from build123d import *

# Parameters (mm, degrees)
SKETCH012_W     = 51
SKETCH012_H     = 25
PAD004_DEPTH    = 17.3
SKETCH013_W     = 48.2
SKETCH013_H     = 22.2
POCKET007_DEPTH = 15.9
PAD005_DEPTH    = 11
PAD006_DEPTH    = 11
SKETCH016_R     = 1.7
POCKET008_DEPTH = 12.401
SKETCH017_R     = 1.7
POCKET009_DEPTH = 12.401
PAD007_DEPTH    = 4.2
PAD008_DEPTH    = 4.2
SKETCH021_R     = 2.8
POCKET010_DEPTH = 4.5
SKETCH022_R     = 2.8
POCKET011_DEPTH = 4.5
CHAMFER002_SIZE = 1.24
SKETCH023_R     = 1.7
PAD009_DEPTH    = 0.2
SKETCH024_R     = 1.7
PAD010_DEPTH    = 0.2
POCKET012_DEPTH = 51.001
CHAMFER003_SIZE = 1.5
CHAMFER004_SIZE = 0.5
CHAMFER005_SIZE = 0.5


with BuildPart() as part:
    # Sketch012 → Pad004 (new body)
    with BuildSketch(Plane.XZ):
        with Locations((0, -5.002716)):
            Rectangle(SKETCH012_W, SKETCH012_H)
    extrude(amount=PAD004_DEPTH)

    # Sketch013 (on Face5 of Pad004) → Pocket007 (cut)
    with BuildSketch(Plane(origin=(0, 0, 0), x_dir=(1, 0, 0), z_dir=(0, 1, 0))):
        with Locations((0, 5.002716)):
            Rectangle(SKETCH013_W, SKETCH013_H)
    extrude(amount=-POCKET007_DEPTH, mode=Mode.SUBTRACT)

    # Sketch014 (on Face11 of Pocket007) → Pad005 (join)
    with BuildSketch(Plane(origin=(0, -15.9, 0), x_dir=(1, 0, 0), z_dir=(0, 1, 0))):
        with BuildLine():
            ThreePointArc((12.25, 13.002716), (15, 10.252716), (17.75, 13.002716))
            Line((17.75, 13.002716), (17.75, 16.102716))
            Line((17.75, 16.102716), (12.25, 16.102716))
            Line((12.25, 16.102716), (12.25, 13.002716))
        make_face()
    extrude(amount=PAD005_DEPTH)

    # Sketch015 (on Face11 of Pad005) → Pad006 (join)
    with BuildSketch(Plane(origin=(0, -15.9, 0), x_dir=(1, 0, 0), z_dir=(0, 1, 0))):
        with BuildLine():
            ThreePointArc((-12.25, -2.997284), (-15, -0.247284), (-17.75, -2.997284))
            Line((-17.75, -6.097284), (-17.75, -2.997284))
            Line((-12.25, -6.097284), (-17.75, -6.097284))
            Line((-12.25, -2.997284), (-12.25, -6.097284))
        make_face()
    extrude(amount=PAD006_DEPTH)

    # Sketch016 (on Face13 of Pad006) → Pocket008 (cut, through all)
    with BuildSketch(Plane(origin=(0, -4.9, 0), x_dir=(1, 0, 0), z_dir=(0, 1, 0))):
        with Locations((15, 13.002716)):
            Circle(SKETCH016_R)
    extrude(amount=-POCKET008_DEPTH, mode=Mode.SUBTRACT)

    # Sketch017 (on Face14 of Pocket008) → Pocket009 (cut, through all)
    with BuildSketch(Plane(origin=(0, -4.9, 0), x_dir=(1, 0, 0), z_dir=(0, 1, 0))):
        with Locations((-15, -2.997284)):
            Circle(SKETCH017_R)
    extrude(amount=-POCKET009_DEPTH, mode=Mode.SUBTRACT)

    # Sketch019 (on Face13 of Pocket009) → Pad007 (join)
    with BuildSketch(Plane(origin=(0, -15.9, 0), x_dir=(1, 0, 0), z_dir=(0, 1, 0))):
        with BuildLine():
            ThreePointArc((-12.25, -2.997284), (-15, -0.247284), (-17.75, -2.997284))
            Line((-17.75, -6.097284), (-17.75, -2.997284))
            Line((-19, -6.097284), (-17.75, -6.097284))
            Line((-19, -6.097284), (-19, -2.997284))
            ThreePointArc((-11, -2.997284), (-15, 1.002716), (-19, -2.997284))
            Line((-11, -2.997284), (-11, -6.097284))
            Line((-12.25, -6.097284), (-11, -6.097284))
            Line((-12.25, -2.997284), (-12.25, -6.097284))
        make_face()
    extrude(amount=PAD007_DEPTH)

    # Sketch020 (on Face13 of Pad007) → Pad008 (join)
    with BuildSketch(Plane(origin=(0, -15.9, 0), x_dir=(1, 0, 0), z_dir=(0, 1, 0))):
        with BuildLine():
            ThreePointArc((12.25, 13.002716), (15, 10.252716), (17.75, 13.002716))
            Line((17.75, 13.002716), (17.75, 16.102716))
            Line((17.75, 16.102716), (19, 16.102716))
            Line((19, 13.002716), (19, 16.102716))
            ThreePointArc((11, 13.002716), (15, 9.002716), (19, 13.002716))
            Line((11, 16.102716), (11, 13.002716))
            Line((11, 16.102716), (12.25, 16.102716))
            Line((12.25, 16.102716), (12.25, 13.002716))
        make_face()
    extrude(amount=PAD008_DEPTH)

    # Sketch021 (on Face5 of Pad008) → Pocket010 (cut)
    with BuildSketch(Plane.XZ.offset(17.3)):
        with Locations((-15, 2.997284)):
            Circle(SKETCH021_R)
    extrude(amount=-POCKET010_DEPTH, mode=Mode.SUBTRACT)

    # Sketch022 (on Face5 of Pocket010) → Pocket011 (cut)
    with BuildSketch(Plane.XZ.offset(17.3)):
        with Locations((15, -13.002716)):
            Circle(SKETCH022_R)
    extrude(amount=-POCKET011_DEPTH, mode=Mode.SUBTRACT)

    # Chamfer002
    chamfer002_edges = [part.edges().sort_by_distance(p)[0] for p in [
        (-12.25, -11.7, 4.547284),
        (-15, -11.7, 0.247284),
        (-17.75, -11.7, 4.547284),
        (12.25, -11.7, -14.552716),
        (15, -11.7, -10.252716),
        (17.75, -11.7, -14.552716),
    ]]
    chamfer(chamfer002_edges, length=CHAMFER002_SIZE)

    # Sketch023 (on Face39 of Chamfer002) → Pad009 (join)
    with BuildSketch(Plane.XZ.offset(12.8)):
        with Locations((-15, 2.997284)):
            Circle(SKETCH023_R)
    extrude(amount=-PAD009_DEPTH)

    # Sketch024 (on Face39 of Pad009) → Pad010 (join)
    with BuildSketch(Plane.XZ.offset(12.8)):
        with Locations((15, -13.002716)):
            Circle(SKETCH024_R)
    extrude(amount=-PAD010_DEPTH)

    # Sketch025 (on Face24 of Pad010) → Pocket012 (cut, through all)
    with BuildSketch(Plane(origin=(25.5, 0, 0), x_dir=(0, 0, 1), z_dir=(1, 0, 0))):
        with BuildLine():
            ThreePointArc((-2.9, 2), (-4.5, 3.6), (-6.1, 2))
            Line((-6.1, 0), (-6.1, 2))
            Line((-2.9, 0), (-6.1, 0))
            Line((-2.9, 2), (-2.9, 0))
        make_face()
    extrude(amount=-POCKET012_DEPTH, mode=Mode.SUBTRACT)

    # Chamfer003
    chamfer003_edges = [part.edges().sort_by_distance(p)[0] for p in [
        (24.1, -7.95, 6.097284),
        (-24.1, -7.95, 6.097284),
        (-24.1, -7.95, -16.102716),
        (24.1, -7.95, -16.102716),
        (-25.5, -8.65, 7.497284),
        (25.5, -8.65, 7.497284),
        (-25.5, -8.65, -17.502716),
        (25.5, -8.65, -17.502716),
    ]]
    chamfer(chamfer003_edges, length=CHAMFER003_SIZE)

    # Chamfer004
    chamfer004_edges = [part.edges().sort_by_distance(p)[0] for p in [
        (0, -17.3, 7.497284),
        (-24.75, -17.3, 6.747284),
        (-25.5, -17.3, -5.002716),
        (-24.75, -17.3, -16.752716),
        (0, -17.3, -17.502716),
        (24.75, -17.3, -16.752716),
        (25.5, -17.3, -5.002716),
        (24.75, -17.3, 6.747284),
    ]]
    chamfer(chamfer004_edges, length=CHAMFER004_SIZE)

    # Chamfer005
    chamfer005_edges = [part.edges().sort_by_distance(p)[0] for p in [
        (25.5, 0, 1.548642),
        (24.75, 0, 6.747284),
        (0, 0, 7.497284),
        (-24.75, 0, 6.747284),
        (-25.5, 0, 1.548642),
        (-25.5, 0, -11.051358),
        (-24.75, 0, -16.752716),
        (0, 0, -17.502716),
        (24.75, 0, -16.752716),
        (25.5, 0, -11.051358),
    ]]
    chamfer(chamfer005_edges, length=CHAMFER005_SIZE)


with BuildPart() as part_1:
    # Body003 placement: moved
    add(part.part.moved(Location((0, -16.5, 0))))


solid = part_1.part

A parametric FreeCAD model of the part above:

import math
import FreeCAD as App
import Part
import Sketcher
from FreeCAD import Vector
Q = App.Units.Quantity


def edges_at(feature, points):
    """Names of the edges that pass closest to the given points."""
    edges = feature.Shape.Edges
    near = lambda p: min(range(len(edges)), key=lambda i: edges[i].distToShape(Part.Vertex(*p))[0])
    return sorted({f"Edge{near(p) + 1}" for p in points})


def add_polygon(sketch, points):
    """Adds a closed chain of lines whose ends are joined by coincident constraints."""
    first, n = sketch.GeometryCount, len(points)
    for a, b in zip(points, points[1:] + points[:1]):
        sketch.addGeometry(Part.LineSegment(App.Vector(*a, 0), App.Vector(*b, 0)), False)
    for i in range(n):
        sketch.addConstraint(Sketcher.Constraint("Coincident", first + i, 2, first + (i + 1) % n, 1))

doc = App.newDocument("Part")
body = doc.addObject("PartDesign::Body", "Body")

# Sketch on XZ plane
sketch1 = body.newObject("Sketcher::SketchObject", "Sketch")
sketch1.AttachmentSupport = (doc.getObject("XZ_Plane"), [""])
sketch1.MapMode = "FlatFace"
add_polygon(sketch1, [(-25.5, 7.497284), (-25.5, -17.502716), (25.5, -17.502716), (25.5, 7.497284)])  # lines 0-3
sketch1.addConstraint([
    Sketcher.Constraint("Vertical", 0),
    Sketcher.Constraint("Horizontal", 1),
    Sketcher.Constraint("Vertical", 2),
    Sketcher.Constraint("Horizontal", 3),
    Sketcher.Constraint("DistanceX", 1, 1, 1, 2, Q("51 mm")),
    Sketcher.Constraint("DistanceY", 0, 2, 0, 1, Q("25 mm")),
    Sketcher.Constraint("DistanceX", 0, 2, -1, 1, Q("25.5 mm")),
    Sketcher.Constraint("DistanceY", 0, 2, -1, 1, Q("17.502716 mm")),
])
pad1 = body.newObject("PartDesign::Pad", "Pad")
pad1.Profile = sketch1
pad1.Length = 17.3

# Sketch on XZ plane
sketch2 = body.newObject("Sketcher::SketchObject", "Sketch001")
sketch2.AttachmentSupport = (doc.getObject("XZ_Plane"), [""])
sketch2.MapMode = "FlatFace"
add_polygon(sketch2, [(-24.1, -16.102716), (-24.1, 6.097284), (24.1, 6.097284), (24.1, -16.102716)])  # lines 0-3
sketch2.addConstraint([
    Sketcher.Constraint("Vertical", 0),
    Sketcher.Constraint("Horizontal", 1),
    Sketcher.Constraint("Vertical", 2),
    Sketcher.Constraint("Horizontal", 3),
    Sketcher.Constraint("DistanceX", 1, 1, 1, 2, Q("48.2 mm")),
    Sketcher.Constraint("DistanceY", 0, 1, 0, 2, Q("22.2 mm")),
    Sketcher.Constraint("DistanceX", 0, 2, -1, 1, Q("24.1 mm")),
    Sketcher.Constraint("DistanceY", -1, 1, 0, 2, Q("6.097284 mm")),
])
pocket1 = body.newObject("PartDesign::Pocket", "Pocket")
pocket1.Profile = sketch2
pocket1.Length = 15.9
pocket1.Reversed = True

# Sketch on XZ plane
sketch3 = body.newObject("Sketcher::SketchObject", "Sketch002")
sketch3.AttachmentSupport = (doc.getObject("XZ_Plane"), [""])
sketch3.MapMode = "FlatFace"
sketch3.AttachmentOffset = App.Placement(Vector(0, 0, 15.9), App.Rotation())
sketch3.addGeometry([
    Part.ArcOfCircle(Part.Circle(Vector(15, -13.002716, 0), Vector(0, 0, 1), 2.75), math.radians(0), math.radians(180)),
    Part.LineSegment(Vector(17.75, -13.002716, 0), Vector(17.75, -16.102716, 0)),
    Part.LineSegment(Vector(17.75, -16.102716, 0), Vector(12.25, -16.102716, 0)),
    Part.LineSegment(Vector(12.25, -16.102716, 0), Vector(12.25, -13.002716, 0)),
], False)
sketch3.addConstraint([
    Sketcher.Constraint("Tangent", 0, 1, 1, 1),
    Sketcher.Constraint("Coincident", 1, 2, 2, 1),
    Sketcher.Constraint("Coincident", 2, 2, 3, 1),
    Sketcher.Constraint("Tangent", 3, 2, 0, 2),
    Sketcher.Constraint("Vertical", 1),
    Sketcher.Constraint("Horizontal", 2),
    Sketcher.Constraint("Vertical", 3),
    Sketcher.Constraint("Radius", 0, Q("2.75 mm")),
    Sketcher.Constraint("DistanceY", 1, 2, 1, 1, Q("3.1 mm")),
    Sketcher.Constraint("DistanceX", -1, 1, 0, 3, Q("15 mm")),
    Sketcher.Constraint("DistanceY", 0, 3, -1, 1, Q("13.002716 mm")),
])
pad2 = body.newObject("PartDesign::Pad", "Pad001")
pad2.Profile = sketch3
pad2.Length = 11
pad2.Reversed = True

# Sketch on XZ plane
sketch4 = body.newObject("Sketcher::SketchObject", "Sketch003")
sketch4.AttachmentSupport = (doc.getObject("XZ_Plane"), [""])
sketch4.MapMode = "FlatFace"
sketch4.AttachmentOffset = App.Placement(Vector(0, 0, 15.9), App.Rotation())
sketch4.addGeometry([
    Part.ArcOfCircle(Part.Circle(Vector(-15, 2.997284, 0), Vector(0, 0, 1), 2.75), math.radians(180), math.radians(360)),
    Part.LineSegment(Vector(-17.75, 2.997284, 0), Vector(-17.75, 6.097284, 0)),
    Part.LineSegment(Vector(-17.75, 6.097284, 0), Vector(-12.25, 6.097284, 0)),
    Part.LineSegment(Vector(-12.25, 6.097284, 0), Vector(-12.25, 2.997284, 0)),
], False)
sketch4.addConstraint([
    Sketcher.Constraint("Tangent", 0, 1, 1, 1),
    Sketcher.Constraint("Coincident", 1, 2, 2, 1),
    Sketcher.Constraint("Coincident", 2, 2, 3, 1),
    Sketcher.Constraint("Tangent", 3, 2, 0, 2),
    Sketcher.Constraint("Vertical", 1),
    Sketcher.Constraint("Horizontal", 2),
    Sketcher.Constraint("Vertical", 3),
    Sketcher.Constraint("Radius", 0, Q("2.75 mm")),
    Sketcher.Constraint("DistanceY", 1, 1, 1, 2, Q("3.1 mm")),
    Sketcher.Constraint("DistanceX", 0, 3, -1, 1, Q("15 mm")),
    Sketcher.Constraint("DistanceY", -1, 1, 0, 3, Q("2.997284 mm")),
])
pad3 = body.newObject("PartDesign::Pad", "Pad002")
pad3.Profile = sketch4
pad3.Length = 11
pad3.Reversed = True

# Sketch on XZ plane
sketch5 = body.newObject("Sketcher::SketchObject", "Sketch004")
sketch5.AttachmentSupport = (doc.getObject("XZ_Plane"), [""])
sketch5.MapMode = "FlatFace"
sketch5.AttachmentOffset = App.Placement(Vector(0, 0, 4.9), App.Rotation())
sketch5.addGeometry(Part.Circle(Vector(15, -13.002716, 0), Vector(0, 0, 1), 1.7), False)
sketch5.addConstraint([
    Sketcher.Constraint("Diameter", 0, Q("3.4 mm")),
    Sketcher.Constraint("DistanceX", -1, 1, 0, 3, Q("15 mm")),
    Sketcher.Constraint("DistanceY", 0, 3, -1, 1, Q("13.002716 mm")),
])
pocket2 = body.newObject("PartDesign::Pocket", "Pocket001")
pocket2.Profile = sketch5
pocket2.Type = "ThroughAll"
pocket2.Reversed = True

# Sketch on XZ plane
sketch6 = body.newObject("Sketcher::SketchObject", "Sketch005")
sketch6.AttachmentSupport = (doc.getObject("XZ_Plane"), [""])
sketch6.MapMode = "FlatFace"
sketch6.AttachmentOffset = App.Placement(Vector(0, 0, 4.9), App.Rotation())
sketch6.addGeometry(Part.Circle(Vector(-15, 2.997284, 0), Vector(0, 0, 1), 1.7), False)
sketch6.addConstraint([
    Sketcher.Constraint("Diameter", 0, Q("3.4 mm")),
    Sketcher.Constraint("DistanceX", 0, 3, -1, 1, Q("15 mm")),
    Sketcher.Constraint("DistanceY", -1, 1, 0, 3, Q("2.997284 mm")),
])
pocket3 = body.newObject("PartDesign::Pocket", "Pocket002")
pocket3.Profile = sketch6
pocket3.Type = "ThroughAll"
pocket3.Reversed = True

# Sketch on XZ plane
sketch7 = body.newObject("Sketcher::SketchObject", "Sketch006")
sketch7.AttachmentSupport = (doc.getObject("XZ_Plane"), [""])
sketch7.MapMode = "FlatFace"
sketch7.AttachmentOffset = App.Placement(Vector(0, 0, 15.9), App.Rotation())
sketch7.addGeometry([
    Part.ArcOfCircle(Part.Circle(Vector(-15, 2.997284, 0), Vector(0, 0, 1), 2.75), math.radians(180), math.radians(360)),  # 0
    Part.LineSegment(Vector(-12.25, 2.997284, 0), Vector(-12.25, 6.097284, 0)),  # 1
    Part.LineSegment(Vector(-12.25, 6.097284, 0), Vector(-11, 6.097284, 0)),  # 2
    Part.LineSegment(Vector(-11, 6.097284, 0), Vector(-11, 2.997284, 0)),  # 3
    Part.ArcOfCircle(Part.Circle(Vector(-15, 2.997284, 0), Vector(0, 0, 1), 4), math.radians(180), math.radians(360)),  # 4
    Part.LineSegment(Vector(-19, 2.997284, 0), Vector(-19, 6.097284, 0)),  # 5
    Part.LineSegment(Vector(-19, 6.097284, 0), Vector(-17.75, 6.097284, 0)),  # 6
    Part.LineSegment(Vector(-17.75, 6.097284, 0), Vector(-17.75, 2.997284, 0)),  # 7
], False)
sketch7.addConstraint([
    Sketcher.Constraint("Tangent", 0, 2, 1, 1),
    Sketcher.Constraint("Coincident", 1, 2, 2, 1),
    Sketcher.Constraint("Coincident", 2, 2, 3, 1),
    Sketcher.Constraint("Tangent", 3, 2, 4, 2),
    Sketcher.Constraint("Tangent", 4, 1, 5, 1),
    Sketcher.Constraint("Coincident", 5, 2, 6, 1),
    Sketcher.Constraint("Coincident", 6, 2, 7, 1),
    Sketcher.Constraint("Tangent", 7, 2, 0, 1),
    Sketcher.Constraint("Vertical", 1),
    Sketcher.Constraint("Horizontal", 2),
    Sketcher.Constraint("Vertical", 3),
    Sketcher.Constraint("Vertical", 5),
    Sketcher.Constraint("Horizontal", 6),
    Sketcher.Constraint("Vertical", 7),
    Sketcher.Constraint("Coincident", 4, 3, 0, 3),
    Sketcher.Constraint("Horizontal", 2, 2, 5, 2),
    Sketcher.Constraint("Radius", 4, Q("4 mm")),
    Sketcher.Constraint("Radius", 0, Q("2.75 mm")),
    Sketcher.Constraint("DistanceY", 1, 1, 1, 2, Q("3.1 mm")),
    Sketcher.Constraint("DistanceX", 0, 3, -1, 1, Q("15 mm")),
    Sketcher.Constraint("DistanceY", -1, 1, 0, 3, Q("2.997284 mm")),
])
pad4 = body.newObject("PartDesign::Pad", "Pad003")
pad4.Profile = sketch7
pad4.Length = 4.2
pad4.Reversed = True

# Sketch on XZ plane
sketch8 = body.newObject("Sketcher::SketchObject", "Sketch007")
sketch8.AttachmentSupport = (doc.getObject("XZ_Plane"), [""])
sketch8.MapMode = "FlatFace"
sketch8.AttachmentOffset = App.Placement(Vector(0, 0, 15.9), App.Rotation())
sketch8.addGeometry([
    Part.ArcOfCircle(Part.Circle(Vector(15, -13.002716, 0), Vector(0, 0, 1), 2.75), math.radians(0), math.radians(180)),  # 0
    Part.LineSegment(Vector(12.25, -13.002716, 0), Vector(12.25, -16.102716, 0)),  # 1
    Part.LineSegment(Vector(12.25, -16.102716, 0), Vector(11, -16.102716, 0)),  # 2
    Part.LineSegment(Vector(11, -16.102716, 0), Vector(11, -13.002716, 0)),  # 3
    Part.ArcOfCircle(Part.Circle(Vector(15, -13.002716, 0), Vector(0, 0, 1), 4), math.radians(0), math.radians(180)),  # 4
    Part.LineSegment(Vector(19, -13.002716, 0), Vector(19, -16.102716, 0)),  # 5
    Part.LineSegment(Vector(19, -16.102716, 0), Vector(17.75, -16.102716, 0)),  # 6
    Part.LineSegment(Vector(17.75, -16.102716, 0), Vector(17.75, -13.002716, 0)),  # 7
], False)
sketch8.addConstraint([
    Sketcher.Constraint("Tangent", 0, 2, 1, 1),
    Sketcher.Constraint("Coincident", 1, 2, 2, 1),
    Sketcher.Constraint("Coincident", 2, 2, 3, 1),
    Sketcher.Constraint("Tangent", 3, 2, 4, 2),
    Sketcher.Constraint("Tangent", 4, 1, 5, 1),
    Sketcher.Constraint("Coincident", 5, 2, 6, 1),
    Sketcher.Constraint("Coincident", 6, 2, 7, 1),
    Sketcher.Constraint("Tangent", 7, 2, 0, 1),
    Sketcher.Constraint("Vertical", 1),
    Sketcher.Constraint("Horizontal", 2),
    Sketcher.Constraint("Vertical", 3),
    Sketcher.Constraint("Vertical", 5),
    Sketcher.Constraint("Horizontal", 6),
    Sketcher.Constraint("Vertical", 7),
    Sketcher.Constraint("Coincident", 4, 3, 0, 3),
    Sketcher.Constraint("Horizontal", 2, 2, 5, 2),
    Sketcher.Constraint("Radius", 4, Q("4 mm")),
    Sketcher.Constraint("Radius", 0, Q("2.75 mm")),
    Sketcher.Constraint("DistanceY", 1, 2, 1, 1, Q("3.1 mm")),
    Sketcher.Constraint("DistanceX", -1, 1, 0, 3, Q("15 mm")),
    Sketcher.Constraint("DistanceY", 0, 3, -1, 1, Q("13.002716 mm")),
])
pad5 = body.newObject("PartDesign::Pad", "Pad004")
pad5.Profile = sketch8
pad5.Length = 4.2
pad5.Reversed = True

# Sketch on XZ plane
sketch9 = body.newObject("Sketcher::SketchObject", "Sketch008")
sketch9.AttachmentSupport = (doc.getObject("XZ_Plane"), [""])
sketch9.MapMode = "FlatFace"
sketch9.AttachmentOffset = App.Placement(Vector(0, 0, 17.3), App.Rotation())
sketch9.addGeometry(Part.Circle(Vector(-15, 2.997284, 0), Vector(0, 0, 1), 2.8), False)
sketch9.addConstraint([
    Sketcher.Constraint("Diameter", 0, Q("5.6 mm")),
    Sketcher.Constraint("DistanceX", 0, 3, -1, 1, Q("15 mm")),
    Sketcher.Constraint("DistanceY", -1, 1, 0, 3, Q("2.997284 mm")),
])
pocket4 = body.newObject("PartDesign::Pocket", "Pocket003")
pocket4.Profile = sketch9
pocket4.Length = 4.5

# Sketch on XZ plane
sketch10 = body.newObject("Sketcher::SketchObject", "Sketch009")
sketch10.AttachmentSupport = (doc.getObject("XZ_Plane"), [""])
sketch10.MapMode = "FlatFace"
sketch10.AttachmentOffset = App.Placement(Vector(0, 0, 17.3), App.Rotation())
sketch10.addGeometry(Part.Circle(Vector(15, -13.002716, 0), Vector(0, 0, 1), 2.8), False)
sketch10.addConstraint([
    Sketcher.Constraint("Diameter", 0, Q("5.6 mm")),
    Sketcher.Constraint("DistanceX", -1, 1, 0, 3, Q("15 mm")),
    Sketcher.Constraint("DistanceY", 0, 3, -1, 1, Q("13.002716 mm")),
])
pocket5 = body.newObject("PartDesign::Pocket", "Pocket004")
pocket5.Profile = sketch10
pocket5.Length = 4.5
doc.recompute()

chamfer = body.newObject("PartDesign::Chamfer", "Chamfer")
chamfer.Base = (pocket5, edges_at(pocket5, [
    (-12.25, -11.7, 4.547),
    (-15, -11.7, 0.247),
    (-17.75, -11.7, 4.547),
    (12.25, -11.7, -14.553),
    (15, -11.7, -10.253),
    (17.75, -11.7, -14.553),
]))
chamfer.Size = 1.24

# Sketch on XZ plane
sketch11 = body.newObject("Sketcher::SketchObject", "Sketch010")
sketch11.AttachmentSupport = (doc.getObject("XZ_Plane"), [""])
sketch11.MapMode = "FlatFace"
sketch11.AttachmentOffset = App.Placement(Vector(0, 0, 12.8), App.Rotation())
sketch11.addGeometry(Part.Circle(Vector(-15, 2.997284, 0), Vector(0, 0, 1), 1.7), False)
sketch11.addConstraint([
    Sketcher.Constraint("Diameter", 0, Q("3.4 mm")),
    Sketcher.Constraint("DistanceX", 0, 3, -1, 1, Q("15 mm")),
    Sketcher.Constraint("DistanceY", -1, 1, 0, 3, Q("2.997284 mm")),
])
pad6 = body.newObject("PartDesign::Pad", "Pad005")
pad6.Profile = sketch11
pad6.Length = 0.2
pad6.Reversed = True

# Sketch on XZ plane
sketch12 = body.newObject("Sketcher::SketchObject", "Sketch011")
sketch12.AttachmentSupport = (doc.getObject("XZ_Plane"), [""])
sketch12.MapMode = "FlatFace"
sketch12.AttachmentOffset = App.Placement(Vector(0, 0, 12.8), App.Rotation())
sketch12.addGeometry(Part.Circle(Vector(15, -13.002716, 0), Vector(0, 0, 1), 1.7), False)
sketch12.addConstraint([
    Sketcher.Constraint("Diameter", 0, Q("3.4 mm")),
    Sketcher.Constraint("DistanceX", -1, 1, 0, 3, Q("15 mm")),
    Sketcher.Constraint("DistanceY", 0, 3, -1, 1, Q("13.002716 mm")),
])
pad7 = body.newObject("PartDesign::Pad", "Pad006")
pad7.Profile = sketch12
pad7.Length = 0.2
pad7.Reversed = True

# Sketch on YZ plane
sketch13 = body.newObject("Sketcher::SketchObject", "Sketch012")
sketch13.AttachmentSupport = (doc.getObject("YZ_Plane"), [""])
sketch13.MapMode = "FlatFace"
sketch13.AttachmentOffset = App.Placement(Vector(0, 0, 25.5), App.Rotation())
sketch13.addGeometry([
    Part.ArcOfCircle(Part.Circle(Vector(-2, -4.5, 0), Vector(0, 0, 1), 1.6), math.radians(90), math.radians(270)),
    Part.LineSegment(Vector(-2, -6.1, 0), Vector(0, -6.1, 0)),
    Part.LineSegment(Vector(0, -6.1, 0), Vector(0, -2.9, 0)),
    Part.LineSegment(Vector(0, -2.9, 0), Vector(-2, -2.9, 0)),
], False)
sketch13.addConstraint([
    Sketcher.Constraint("Tangent", 0, 2, 1, 1),
    Sketcher.Constraint("Coincident", 1, 2, 2, 1),
    Sketcher.Constraint("Coincident", 2, 2, 3, 1),
    Sketcher.Constraint("Tangent", 3, 2, 0, 1),
    Sketcher.Constraint("Horizontal", 1),
    Sketcher.Constraint("Vertical", 2),
    Sketcher.Constraint("Horizontal", 3),
    Sketcher.Constraint("PointOnObject", 1, 2, -2),
    Sketcher.Constraint("Radius", 0, Q("1.6 mm")),
    Sketcher.Constraint("DistanceX", 1, 1, 1, 2, Q("2 mm")),
    Sketcher.Constraint("DistanceY", 0, 3, -1, 1, Q("4.5 mm")),
])
pocket6 = body.newObject("PartDesign::Pocket", "Pocket005")
pocket6.Profile = sketch13
pocket6.Type = "ThroughAll"
doc.recompute()

chamfer2 = body.newObject("PartDesign::Chamfer", "Chamfer001")
chamfer2.Base = (pocket6, edges_at(pocket6, [
    (24.1, -7.95, 6.097),
    (-24.1, -7.95, 6.097),
    (-24.1, -7.95, -16.103),
    (24.1, -7.95, -16.103),
    (-25.5, -8.65, 7.497),
    (25.5, -8.65, 7.497),
    (-25.5, -8.65, -17.503),
    (25.5, -8.65, -17.503),
]))
chamfer2.Size = 1.5
doc.recompute()

chamfer3 = body.newObject("PartDesign::Chamfer", "Chamfer002")
chamfer3.Base = (chamfer2, edges_at(chamfer2, [
    (0, -17.3, 7.497),
    (-24.75, -17.3, 6.747),
    (-25.5, -17.3, -5.003),
    (-24.75, -17.3, -16.753),
    (0, -17.3, -17.503),
    (24.75, -17.3, -16.753),
    (25.5, -17.3, -5.003),
    (24.75, -17.3, 6.747),
]))
chamfer3.Size = 0.5
doc.recompute()

chamfer4 = body.newObject("PartDesign::Chamfer", "Chamfer003")
chamfer4.Base = (chamfer3, edges_at(chamfer3, [
    (25.5, 0, 1.549),
    (24.75, 0, 6.747),
    (0, 0, 7.497),
    (-24.75, 0, 6.747),
    (-25.5, 0, 1.549),
    (-25.5, 0, -11.051),
    (-24.75, 0, -16.753),
    (0, 0, -17.503),
    (24.75, 0, -16.753),
    (25.5, 0, -11.051),
]))
chamfer4.Size = 0.5
body2 = doc.addObject("PartDesign::Body", "Body001")
doc.recompute()

body.Placement = App.Placement(Vector(0, -16.5, 0), App.Rotation(Vector(0, 0, 1), 0))
boolean = body2.newObject("PartDesign::Boolean", "Boolean")
boolean.Type = "Fuse"
boolean.addObjects([body])

doc.recompute()
